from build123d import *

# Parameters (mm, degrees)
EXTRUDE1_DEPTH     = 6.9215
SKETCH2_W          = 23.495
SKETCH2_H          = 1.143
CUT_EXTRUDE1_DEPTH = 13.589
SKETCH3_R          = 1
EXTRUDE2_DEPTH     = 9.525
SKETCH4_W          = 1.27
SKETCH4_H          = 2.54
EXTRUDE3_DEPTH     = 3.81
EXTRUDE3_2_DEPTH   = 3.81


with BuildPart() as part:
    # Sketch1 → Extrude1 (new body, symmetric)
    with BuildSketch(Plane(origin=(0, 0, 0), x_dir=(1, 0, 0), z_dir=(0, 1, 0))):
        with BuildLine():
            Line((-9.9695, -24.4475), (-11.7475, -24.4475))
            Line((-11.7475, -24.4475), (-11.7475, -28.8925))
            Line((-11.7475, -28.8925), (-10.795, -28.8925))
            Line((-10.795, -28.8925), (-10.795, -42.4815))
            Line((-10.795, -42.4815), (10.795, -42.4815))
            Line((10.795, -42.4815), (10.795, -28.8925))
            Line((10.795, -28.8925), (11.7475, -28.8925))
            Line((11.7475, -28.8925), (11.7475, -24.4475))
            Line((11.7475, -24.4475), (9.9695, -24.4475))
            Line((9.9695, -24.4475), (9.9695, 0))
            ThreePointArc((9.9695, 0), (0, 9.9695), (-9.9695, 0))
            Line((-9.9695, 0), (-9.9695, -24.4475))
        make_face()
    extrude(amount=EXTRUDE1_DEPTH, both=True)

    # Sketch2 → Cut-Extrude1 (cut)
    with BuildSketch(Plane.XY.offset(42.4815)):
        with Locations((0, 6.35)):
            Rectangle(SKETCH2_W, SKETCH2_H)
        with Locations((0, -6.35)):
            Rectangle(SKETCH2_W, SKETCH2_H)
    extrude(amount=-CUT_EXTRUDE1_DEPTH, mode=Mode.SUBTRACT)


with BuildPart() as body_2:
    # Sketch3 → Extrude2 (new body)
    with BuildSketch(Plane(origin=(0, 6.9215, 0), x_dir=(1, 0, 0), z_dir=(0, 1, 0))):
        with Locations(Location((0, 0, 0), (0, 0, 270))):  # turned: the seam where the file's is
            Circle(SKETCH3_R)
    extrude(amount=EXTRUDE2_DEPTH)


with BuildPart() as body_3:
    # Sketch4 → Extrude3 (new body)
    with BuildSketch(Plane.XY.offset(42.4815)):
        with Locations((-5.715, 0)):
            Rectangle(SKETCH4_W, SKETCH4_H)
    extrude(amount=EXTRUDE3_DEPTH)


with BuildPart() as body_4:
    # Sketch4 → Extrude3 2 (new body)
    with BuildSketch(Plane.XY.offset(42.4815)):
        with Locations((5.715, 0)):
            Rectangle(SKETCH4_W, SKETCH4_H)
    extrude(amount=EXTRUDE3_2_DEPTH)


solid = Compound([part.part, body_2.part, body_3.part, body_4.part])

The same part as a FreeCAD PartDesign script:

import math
import FreeCAD as App
import Part
import Sketcher
from FreeCAD import Vector
Q = App.Units.Quantity


def add_polygon(sketch, points):
    """Adds a closed chain of lines whose ends are joined by coincident constraints."""
    first, n = sketch.GeometryCount, len(points)
    for a, b in zip(points, points[1:] + points[:1]):
        sketch.addGeometry(Part.LineSegment(App.Vector(*a, 0), App.Vector(*b, 0)), False)
    for i in range(n):
        sketch.addConstraint(Sketcher.Constraint("Coincident", first + i, 2, first + (i + 1) % n, 1))

doc = App.newDocument("Part")
body = doc.addObject("PartDesign::Body", "Body")

# Sketch on XZ plane
sketch1 = body.newObject("Sketcher::SketchObject", "Sketch")
sketch1.AttachmentSupport = (doc.getObject("XZ_Plane"), [""])
sketch1.MapMode = "FlatFace"
sketch1.addGeometry(Part.LineSegment(Vector(-10, 24.4, 0), Vector(-11.7, 24.4, 0)), False)
sketch1.addGeometry(Part.LineSegment(Vector(-11.7, 24.4, 0), Vector(-11.7, 28.9, 0)), False)
sketch1.addGeometry(Part.LineSegment(Vector(-11.7, 28.9, 0), Vector(-10.8, 28.9, 0)), False)
sketch1.addGeometry(Part.LineSegment(Vector(-10.8, 28.9, 0), Vector(-10.8, 42.5, 0)), False)
sketch1.addGeometry(Part.LineSegment(Vector(-10.8, 42.5, 0), Vector(10.8, 42.5, 0)), False)
sketch1.addGeometry(Part.LineSegment(Vector(10.8, 42.5, 0), Vector(10.8, 28.9, 0)), False)
sketch1.addGeometry(Part.LineSegment(Vector(10.8, 28.9, 0), Vector(11.7, 28.9, 0)), False)
sketch1.addGeometry(Part.LineSegment(Vector(11.7, 28.9, 0), Vector(11.7, 24.4, 0)), False)
sketch1.addGeometry(Part.LineSegment(Vector(11.7, 24.4, 0), Vector(10, 24.4, 0)), False)
sketch1.addGeometry(Part.LineSegment(Vector(10, 24.4, 0), Vector(10, 0, 0)), False)
sketch1.addGeometry(Part.ArcOfCircle(Part.Circle(Vector(0, 0, 0), Vector(0, 0, 1), 10), math.radians(180), math.radians(360)), False)
sketch1.addGeometry(Part.LineSegment(Vector(-10, 0, 0), Vector(-10, 24.4, 0)), False)
sketch1.addConstraint(Sketcher.Constraint("Coincident", 0, 2, 1, 1))
sketch1.addConstraint(Sketcher.Constraint("Coincident", 1, 2, 2, 1))
sketch1.addConstraint(Sketcher.Constraint("Coincident", 2, 2, 3, 1))
sketch1.addConstraint(Sketcher.Constraint("Coincident", 3, 2, 4, 1))
sketch1.addConstraint(Sketcher.Constraint("Coincident", 4, 2, 5, 1))
sketch1.addConstraint(Sketcher.Constraint("Coincident", 5, 2, 6, 1))
sketch1.addConstraint(Sketcher.Constraint("Coincident", 6, 2, 7, 1))
sketch1.addConstraint(Sketcher.Constraint("Coincident", 7, 2, 8, 1))
sketch1.addConstraint(Sketcher.Constraint("Coincident", 8, 2, 9, 1))
sketch1.addConstraint(Sketcher.Constraint("Tangent", 9, 2, 10, 2))
sketch1.addConstraint(Sketcher.Constraint("Tangent", 10, 1, 11, 1))
sketch1.addConstraint(Sketcher.Constraint("Coincident", 11, 2, 0, 1))
sketch1.addConstraint(Sketcher.Constraint("Horizontal", 0))
sketch1.addConstraint(Sketcher.Constraint("Vertical", 1))
sketch1.addConstraint(Sketcher.Constraint("Horizontal", 2))
sketch1.addConstraint(Sketcher.Constraint("Vertical", 3))
sketch1.addConstraint(Sketcher.Constraint("Horizontal", 4))
sketch1.addConstraint(Sketcher.Constraint("Vertical", 5))
sketch1.addConstraint(Sketcher.Constraint("Horizontal", 6))
sketch1.addConstraint(Sketcher.Constraint("Vertical", 7))
sketch1.addConstraint(Sketcher.Constraint("Horizontal", 8))
sketch1.addConstraint(Sketcher.Constraint("Vertical", 9))
sketch1.addConstraint(Sketcher.Constraint("Vertical", 11))
sketch1.addConstraint(Sketcher.Constraint("Coincident", 10, 3, -1, 1))
sketch1.addConstraint(Sketcher.Constraint("Symmetric", 2, 2, 5, 2, -2))
sketch1.addConstraint(Sketcher.Constraint("Symmetric", 0, 2, 7, 2, -2))
sketch1.addConstraint(Sketcher.Constraint("DistanceX", 0, 2, 0, 1, Q("0.07 in")))
sketch1.addConstraint(Sketcher.Constraint("DistanceX", 4, 1, 4, 2, Q("0.85 in")))
sketch1.addConstraint(Sketcher.Constraint("Radius", 10, Q("0.3925 in")))
sketch1.addConstraint(Sketcher.Constraint("DistanceY", 1, 1, 1, 2, Q("0.175 in")))
sketch1.addConstraint(Sketcher.Constraint("DistanceY", 3, 1, 3, 2, Q("0.535 in")))
sketch1.addConstraint(Sketcher.Constraint("DistanceY", 9, 2, 9, 1, Q("0.9625 in")))
pad1 = body.newObject("PartDesign::Pad", "Pad")
pad1.Profile = sketch1
pad1.Length = Q("0.545 in")
pad1.Midplane = True

# Sketch on XY plane
sketch2 = body.newObject("Sketcher::SketchObject", "Sketch001")
sketch2.AttachmentSupport = (doc.getObject("XY_Plane"), [""])
sketch2.MapMode = "FlatFace"
sketch2.AttachmentOffset = App.Placement(Vector(0, 0, 1.6725 * 25.4), App.Rotation())
add_polygon(sketch2, [(-11.7, 6.9), (-11.7, 5.8), (11.7, 5.8), (11.7, 6.9)])  # lines 0-3
add_polygon(sketch2, [(-11.7, -5.8), (-11.7, -6.9), (11.7, -6.9), (11.7, -5.8)])  # lines 4-7
sketch2.addConstraint(Sketcher.Constraint("Vertical", 0))
sketch2.addConstraint(Sketcher.Constraint("Horizontal", 1))
sketch2.addConstraint(Sketcher.Constraint("Vertical", 2))
sketch2.addConstraint(Sketcher.Constraint("Horizontal", 3))
sketch2.addConstraint(Sketcher.Constraint("Vertical", 4))
sketch2.addConstraint(Sketcher.Constraint("Horizontal", 5))
sketch2.addConstraint(Sketcher.Constraint("Vertical", 6))
sketch2.addConstraint(Sketcher.Constraint("Horizontal", 7))
sketch2.addConstraint(Sketcher.Constraint("Symmetric", 2, 2, 4, 2, -1, 1))
sketch2.addConstraint(Sketcher.Constraint("Symmetric", 0, 2, 6, 2, -1, 1))
sketch2.addConstraint(Sketcher.Constraint("Vertical", 3, 2, 4, 2))
sketch2.addConstraint(Sketcher.Constraint("DistanceY", 4, 2, 0, 2, Q("0.5 in")))
sketch2.addConstraint(Sketcher.Constraint("DistanceX", 1, 1, 1, 2, Q("0.925 in")))
sketch2.addConstraint(Sketcher.Constraint("DistanceY", 0, 2, 0, 1, Q("0.045 in")))
pocket1 = body.newObject("PartDesign::Pocket", "Pocket")
pocket1.Profile = sketch2
pocket1.Length = Q("0.535 in")
body2 = doc.addObject("PartDesign::Body", "Body001")

# Sketch on XZ plane
sketch3 = body2.newObject("Sketcher::SketchObject", "Sketch002")
sketch3.AttachmentSupport = (doc.getObject("XZ_Plane001"), [""])
sketch3.MapMode = "FlatFace"
sketch3.AttachmentOffset = App.Placement(Vector(0, 0, -0.2725 * 25.4), App.Rotation())
sketch3.addGeometry(Part.Circle(Vector(0, 0, 0), Vector(0, 0, 1), 1), False)
sketch3.addConstraint(Sketcher.Constraint("Coincident", 0, 3, -1, 1))
sketch3.addConstraint(Sketcher.Constraint("Diameter", 0, Q("2 mm")))
pad2 = body2.newObject("PartDesign::Pad", "Pad001")
pad2.Profile = sketch3
pad2.Length = Q("0.375 in")
pad2.Reversed = True
body3 = doc.addObject("PartDesign::Body", "Body002")

# Sketch on XY plane
sketch4 = body3.newObject("Sketcher::SketchObject", "Sketch003")
sketch4.AttachmentSupport = (doc.getObject("XY_Plane002"), [""])
sketch4.MapMode = "FlatFace"
sketch4.AttachmentOffset = App.Placement(Vector(0, 0, 1.6725 * 25.4), App.Rotation())
add_polygon(sketch4, [(-6.3, 1.3), (-6.3, -1.3), (-5.1, -1.3), (-5.1, 1.3)])  # lines 0-3
sketch4.addConstraint(Sketcher.Constraint("Vertical", 0))
sketch4.addConstraint(Sketcher.Constraint("Horizontal", 1))
sketch4.addConstraint(Sketcher.Constraint("Vertical", 2))
sketch4.addConstraint(Sketcher.Constraint("Horizontal", 3))
sketch4.addConstraint(Sketcher.Constraint("DistanceY", 0, 2, 0, 1, Q("0.1 in")))
sketch4.addConstraint(Sketcher.Constraint("DistanceX", 1, 1, 1, 2, Q("0.05 in")))
sketch4.addConstraint(Sketcher.Constraint("DistanceX", 1, 2, -1, 1, Q("0.2 in")))
sketch4.addConstraint(Sketcher.Constraint("DistanceY", 0, 2, -1, 1, Q("0.05 in")))
pad3 = body3.newObject("PartDesign::Pad", "Pad002")
pad3.Profile = sketch4
pad3.Length = Q("0.15 in")
body4 = doc.addObject("PartDesign::Body", "Body003")

# Sketch on XY plane
sketch5 = body4.newObject("Sketcher::SketchObject", "Sketch004")
sketch5.AttachmentSupport = (doc.getObject("XY_Plane003"), [""])
sketch5.MapMode = "FlatFace"
sketch5.AttachmentOffset = App.Placement(Vector(0, 0, 1.6725 * 25.4), App.Rotation())
add_polygon(sketch5, [(5.1, 1.3), (5.1, -1.3), (6.3, -1.3), (6.3, 1.3)])  # lines 0-3
sketch5.addConstraint(Sketcher.Constraint("Vertical", 0))
sketch5.addConstraint(Sketcher.Constraint("Horizontal", 1))
sketch5.addConstraint(Sketcher.Constraint("Vertical", 2))
sketch5.addConstraint(Sketcher.Constraint("Horizontal", 3))
sketch5.addConstraint(Sketcher.Constraint("DistanceY", 0, 2, 0, 1, Q("0.1 in")))
sketch5.addConstraint(Sketcher.Constraint("DistanceX", 1, 1, 1, 2, Q("0.05 in")))
sketch5.addConstraint(Sketcher.Constraint("DistanceX", -1, 1, 0, 2, Q("0.2 in")))
sketch5.addConstraint(Sketcher.Constraint("DistanceY", 0, 2, -1, 1, Q("0.05 in")))
pad4 = body4.newObject("PartDesign::Pad", "Pad003")
pad4.Profile = sketch5
pad4.Length = Q("0.15 in")

doc.recompute()
